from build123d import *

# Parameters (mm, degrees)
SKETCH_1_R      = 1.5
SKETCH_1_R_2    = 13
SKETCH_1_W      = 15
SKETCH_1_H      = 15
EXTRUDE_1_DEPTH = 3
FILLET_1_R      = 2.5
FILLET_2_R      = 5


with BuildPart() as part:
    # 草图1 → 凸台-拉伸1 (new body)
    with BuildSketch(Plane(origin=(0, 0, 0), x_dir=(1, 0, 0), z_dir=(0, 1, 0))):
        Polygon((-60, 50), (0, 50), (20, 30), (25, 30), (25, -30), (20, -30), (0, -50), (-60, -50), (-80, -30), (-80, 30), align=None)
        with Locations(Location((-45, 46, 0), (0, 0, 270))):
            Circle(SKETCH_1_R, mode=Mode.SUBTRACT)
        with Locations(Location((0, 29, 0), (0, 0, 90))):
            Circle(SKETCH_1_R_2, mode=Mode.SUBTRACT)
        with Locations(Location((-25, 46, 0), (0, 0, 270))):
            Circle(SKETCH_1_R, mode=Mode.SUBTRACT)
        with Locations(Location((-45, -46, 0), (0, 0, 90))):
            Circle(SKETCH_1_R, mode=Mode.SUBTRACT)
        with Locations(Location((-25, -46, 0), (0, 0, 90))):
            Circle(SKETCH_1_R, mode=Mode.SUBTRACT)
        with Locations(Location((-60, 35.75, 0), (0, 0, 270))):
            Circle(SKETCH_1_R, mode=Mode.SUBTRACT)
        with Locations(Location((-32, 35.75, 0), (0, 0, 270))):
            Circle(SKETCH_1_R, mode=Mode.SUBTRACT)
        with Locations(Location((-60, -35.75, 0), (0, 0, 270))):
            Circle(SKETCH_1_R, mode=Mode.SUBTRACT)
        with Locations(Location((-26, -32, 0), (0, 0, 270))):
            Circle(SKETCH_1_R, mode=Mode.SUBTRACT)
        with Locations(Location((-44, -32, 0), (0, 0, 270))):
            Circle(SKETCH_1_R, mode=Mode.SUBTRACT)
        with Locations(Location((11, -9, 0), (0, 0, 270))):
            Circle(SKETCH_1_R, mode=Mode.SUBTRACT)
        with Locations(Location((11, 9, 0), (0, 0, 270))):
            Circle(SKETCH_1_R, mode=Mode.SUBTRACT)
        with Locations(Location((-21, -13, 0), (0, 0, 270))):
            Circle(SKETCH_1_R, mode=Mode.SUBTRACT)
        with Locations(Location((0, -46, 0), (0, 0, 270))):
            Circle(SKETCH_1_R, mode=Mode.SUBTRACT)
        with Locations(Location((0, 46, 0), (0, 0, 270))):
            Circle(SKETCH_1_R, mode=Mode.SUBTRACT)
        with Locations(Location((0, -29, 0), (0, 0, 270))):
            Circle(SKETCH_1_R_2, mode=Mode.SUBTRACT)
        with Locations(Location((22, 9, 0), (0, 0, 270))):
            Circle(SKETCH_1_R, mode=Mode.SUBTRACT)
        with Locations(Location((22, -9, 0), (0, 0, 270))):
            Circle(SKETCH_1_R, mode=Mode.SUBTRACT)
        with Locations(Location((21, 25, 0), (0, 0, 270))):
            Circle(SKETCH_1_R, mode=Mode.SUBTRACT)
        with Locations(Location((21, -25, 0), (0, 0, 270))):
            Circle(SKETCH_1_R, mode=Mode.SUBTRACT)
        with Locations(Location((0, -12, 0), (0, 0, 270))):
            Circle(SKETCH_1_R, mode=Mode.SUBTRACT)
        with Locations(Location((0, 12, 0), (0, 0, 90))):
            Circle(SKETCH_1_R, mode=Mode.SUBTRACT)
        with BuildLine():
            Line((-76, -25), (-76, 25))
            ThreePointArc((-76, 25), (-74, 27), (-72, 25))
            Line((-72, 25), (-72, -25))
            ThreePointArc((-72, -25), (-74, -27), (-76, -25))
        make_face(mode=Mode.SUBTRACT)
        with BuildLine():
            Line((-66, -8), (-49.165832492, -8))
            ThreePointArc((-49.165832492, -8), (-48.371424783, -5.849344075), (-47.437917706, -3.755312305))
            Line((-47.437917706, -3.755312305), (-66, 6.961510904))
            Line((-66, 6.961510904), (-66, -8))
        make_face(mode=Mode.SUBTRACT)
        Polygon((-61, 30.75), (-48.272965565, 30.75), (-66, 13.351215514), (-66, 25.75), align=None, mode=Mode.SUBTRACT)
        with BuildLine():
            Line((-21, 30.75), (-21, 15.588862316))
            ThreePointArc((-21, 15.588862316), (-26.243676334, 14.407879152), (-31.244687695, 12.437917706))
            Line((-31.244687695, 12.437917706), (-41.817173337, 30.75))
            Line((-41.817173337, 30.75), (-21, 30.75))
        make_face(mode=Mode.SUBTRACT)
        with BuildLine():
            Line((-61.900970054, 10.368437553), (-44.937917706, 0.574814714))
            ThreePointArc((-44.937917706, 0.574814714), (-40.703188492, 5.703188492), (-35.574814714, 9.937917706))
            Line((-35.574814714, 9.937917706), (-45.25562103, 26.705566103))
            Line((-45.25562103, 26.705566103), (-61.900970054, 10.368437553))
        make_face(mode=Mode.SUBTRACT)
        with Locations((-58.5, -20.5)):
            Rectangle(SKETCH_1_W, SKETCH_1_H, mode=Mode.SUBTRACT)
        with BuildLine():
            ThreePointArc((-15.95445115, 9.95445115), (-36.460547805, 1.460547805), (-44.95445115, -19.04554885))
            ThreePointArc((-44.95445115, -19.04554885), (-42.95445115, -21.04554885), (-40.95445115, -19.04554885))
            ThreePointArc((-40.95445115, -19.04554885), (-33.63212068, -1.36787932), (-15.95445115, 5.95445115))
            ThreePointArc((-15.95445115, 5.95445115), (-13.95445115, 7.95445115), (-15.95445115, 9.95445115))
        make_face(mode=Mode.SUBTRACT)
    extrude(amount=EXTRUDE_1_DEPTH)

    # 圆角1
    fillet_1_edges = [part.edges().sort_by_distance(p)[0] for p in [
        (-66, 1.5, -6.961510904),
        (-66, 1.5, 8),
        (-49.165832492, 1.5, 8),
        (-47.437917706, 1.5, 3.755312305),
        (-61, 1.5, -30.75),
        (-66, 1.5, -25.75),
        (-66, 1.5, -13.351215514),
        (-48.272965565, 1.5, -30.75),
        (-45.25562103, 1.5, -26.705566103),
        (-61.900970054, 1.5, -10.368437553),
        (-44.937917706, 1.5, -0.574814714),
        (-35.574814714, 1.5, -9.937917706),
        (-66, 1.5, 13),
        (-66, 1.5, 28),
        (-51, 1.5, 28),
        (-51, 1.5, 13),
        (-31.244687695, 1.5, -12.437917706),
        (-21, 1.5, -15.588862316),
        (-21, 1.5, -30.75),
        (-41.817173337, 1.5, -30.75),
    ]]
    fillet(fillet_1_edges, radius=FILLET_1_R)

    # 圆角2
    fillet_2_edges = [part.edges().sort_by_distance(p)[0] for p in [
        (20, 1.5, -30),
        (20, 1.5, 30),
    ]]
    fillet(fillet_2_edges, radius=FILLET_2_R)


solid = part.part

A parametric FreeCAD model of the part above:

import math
import FreeCAD as App
import Part
import Sketcher

V = App.Vector
Q = App.Units.Quantity


def edges_at(feature, points):
    """Names of the edges that pass closest to the given points."""
    edges = feature.Shape.Edges
    near = lambda p: min(range(len(edges)), key=lambda i: edges[i].distToShape(Part.Vertex(*p))[0])
    return sorted({f"Edge{near(p) + 1}" for p in points})


def add_polygon(sketch, points):
    """Adds a closed chain of lines whose ends are joined by coincident constraints."""
    first, n = sketch.GeometryCount, len(points)
    for a, b in zip(points, points[1:] + points[:1]):
        sketch.addGeometry(Part.LineSegment(App.Vector(*a, 0), App.Vector(*b, 0)), False)
    for i in range(n):
        sketch.addConstraint(Sketcher.Constraint("Coincident", first + i, 2, first + (i + 1) % n, 1))

doc = App.newDocument("Part")
body = doc.addObject("PartDesign::Body", "Body")

sketch1 = body.newObject("Sketcher::SketchObject", "Sketch")
sketch1.AttachmentSupport = (doc.getObject("XZ_Plane"), [""])
sketch1.MapMode = "FlatFace"
add_polygon(sketch1, [(0, -50), (-60, -50), (-80, -30), (-80, 30), (-60, 50), (0, 50), (20, 30), (25, 30), (25, -30), (20, -30)])
sketch1.addGeometry(Part.Circle(V(0, 46, 0), V(0, 0, 1), 1.5), False)
sketch1.addGeometry(Part.Circle(V(21, 25, 0), V(0, 0, 1), 1.5), False)
sketch1.addGeometry(Part.Circle(V(0, 29, 0), V(0, 0, 1), 13), False)
sketch1.addGeometry(Part.Circle(V(-25, 46, 0), V(0, 0, 1), 1.5), False)
sketch1.addGeometry(Part.Circle(V(-26, 32, 0), V(0, 0, 1), 1.5), False)
sketch1.addGeometry(Part.Circle(V(0, 12, 0), V(0, 0, 1), 1.5), False)
sketch1.addGeometry(Part.Circle(V(22, 9, 0), V(0, 0, 1), 1.5), False)
sketch1.addGeometry(Part.Circle(V(11, 9, 0), V(0, 0, 1), 1.5), False)
sketch1.addGeometry(Part.Circle(V(-21, 13, 0), V(0, 0, 1), 1.5), False)
sketch1.addGeometry(Part.Circle(V(-45, 46, 0), V(0, 0, 1), 1.5), False)
sketch1.addGeometry(Part.Circle(V(-44, 32, 0), V(0, 0, 1), 1.5), False)
sketch1.addGeometry(Part.Circle(V(-60, 35.75, 0), V(0, 0, 1), 1.5), False)
sketch1.addGeometry(Part.ArcOfCircle(Part.Circle(V(-15.954451, -7.954451, 0), V(0, 0, 1), 2), math.radians(-90), math.radians(90)), False)
sketch1.addGeometry(Part.ArcOfCircle(Part.Circle(V(-15.954451, 19.045549, 0), V(0, 0, 1), 25), math.radians(180), math.radians(270)), False)
sketch1.addGeometry(Part.ArcOfCircle(Part.Circle(V(-42.954451, 19.045549, 0), V(0, 0, 1), 2), math.radians(0), math.radians(180)), False)
sketch1.addGeometry(Part.ArcOfCircle(Part.Circle(V(-15.954451, 19.045549, 0), V(0, 0, 1), 29), math.radians(180), math.radians(270)), False)
add_polygon(sketch1, [(-66, 28), (-66, 13), (-51, 13), (-51, 28)])
sketch1.addGeometry(Part.LineSegment(V(-66, 8, 0), V(-66, -6.961511, 0)), False)
sketch1.addGeometry(Part.LineSegment(V(-66, -6.961511, 0), V(-47.437918, 3.755312, 0)), False)
sketch1.addGeometry(Part.ArcOfCircle(Part.Circle(V(-15.954451, 19.045549, 0), V(0, 0, 1), 35), math.radians(-161.603739), math.radians(-154.096044)), False)
sketch1.addGeometry(Part.LineSegment(V(-49.165832, 8, 0), V(-66, 8, 0)), False)
sketch1.addGeometry(Part.Circle(V(22, -9, 0), V(0, 0, 1), 1.5), False)
sketch1.addGeometry(Part.Circle(V(11, -9, 0), V(0, 0, 1), 1.5), False)
sketch1.addGeometry(Part.Circle(V(0, -12, 0), V(0, 0, 1), 1.5), False)
sketch1.addGeometry(Part.Circle(V(21, -25, 0), V(0, 0, 1), 1.5), False)
sketch1.addGeometry(Part.Circle(V(0, -29, 0), V(0, 0, 1), 13), False)
sketch1.addGeometry(Part.Circle(V(0, -46, 0), V(0, 0, 1), 1.5), False)
sketch1.addGeometry(Part.Circle(V(-25, -46, 0), V(0, 0, 1), 1.5), False)
sketch1.addGeometry(Part.LineSegment(V(-21, -30.75, 0), V(-21, -15.588862, 0)), False)
sketch1.addGeometry(Part.ArcOfCircle(Part.Circle(V(-15.954451, 19.045549, 0), V(0, 0, 1), 35), math.radians(-115.903956), math.radians(-98.288555)), False)
sketch1.addGeometry(Part.LineSegment(V(-31.244688, -12.437918, 0), V(-41.817173, -30.75, 0)), False)
sketch1.addGeometry(Part.LineSegment(V(-41.817173, -30.75, 0), V(-21, -30.75, 0)), False)
sketch1.addGeometry(Part.LineSegment(V(-61.90097, -10.368438, 0), V(-45.255621, -26.705566, 0)), False)
sketch1.addGeometry(Part.LineSegment(V(-45.255621, -26.705566, 0), V(-35.574815, -9.937918, 0)), False)
sketch1.addGeometry(Part.ArcOfCircle(Part.Circle(V(-15.954451, 19.045549, 0), V(0, 0, 1), 35), math.radians(-145.903956), math.radians(-124.096044)), False)
sketch1.addGeometry(Part.LineSegment(V(-44.937918, -0.574815, 0), V(-61.90097, -10.368438, 0)), False)
sketch1.addGeometry(Part.LineSegment(V(-76, 25, 0), V(-76, -25, 0)), False)
sketch1.addGeometry(Part.ArcOfCircle(Part.Circle(V(-74, -25, 0), V(0, 0, 1), 2), math.radians(180), math.radians(360)), False)
sketch1.addGeometry(Part.LineSegment(V(-72, -25, 0), V(-72, 25, 0)), False)
sketch1.addGeometry(Part.ArcOfCircle(Part.Circle(V(-74, 25, 0), V(0, 0, 1), 2), math.radians(0), math.radians(180)), False)
add_polygon(sketch1, [(-61, -30.75), (-48.272966, -30.75), (-66, -13.351216), (-66, -25.75)])
sketch1.addGeometry(Part.Circle(V(-32, -35.75, 0), V(0, 0, 1), 1.5), False)
sketch1.addGeometry(Part.Circle(V(-45, -46, 0), V(0, 0, 1), 1.5), False)
sketch1.addGeometry(Part.Circle(V(-60, -35.75, 0), V(0, 0, 1), 1.5), False)
sketch1.addConstraint([
    Sketcher.Constraint("Tangent", 22, 2, 23, 2),
    Sketcher.Constraint("Tangent", 23, 1, 24, 1),
    Sketcher.Constraint("Tangent", 24, 2, 25, 1),
    Sketcher.Constraint("Tangent", 25, 2, 22, 1),
    Sketcher.Constraint("Coincident", 30, 2, 31, 1),
    Sketcher.Constraint("Coincident", 31, 2, 32, 2),
    Sketcher.Constraint("Coincident", 32, 1, 33, 1),
    Sketcher.Constraint("Coincident", 33, 2, 30, 1),
    Sketcher.Constraint("Coincident", 41, 2, 42, 2),
    Sketcher.Constraint("Coincident", 42, 1, 43, 1),
    Sketcher.Constraint("Coincident", 43, 2, 44, 1),
    Sketcher.Constraint("Coincident", 44, 2, 41, 1),
    Sketcher.Constraint("Coincident", 45, 2, 46, 1),
    Sketcher.Constraint("Coincident", 46, 2, 47, 2),
    Sketcher.Constraint("Coincident", 47, 1, 48, 1),
    Sketcher.Constraint("Coincident", 48, 2, 45, 1),
    Sketcher.Constraint("Tangent", 49, 2, 50, 1),
    Sketcher.Constraint("Tangent", 50, 2, 51, 1),
    Sketcher.Constraint("Tangent", 51, 2, 52, 1),
    Sketcher.Constraint("Tangent", 52, 2, 49, 1),
    Sketcher.Constraint("Horizontal", 0),
    Sketcher.Constraint("Vertical", 2),
    Sketcher.Constraint("Horizontal", 4),
    Sketcher.Constraint("Horizontal", 6),
    Sketcher.Constraint("Vertical", 7),
    Sketcher.Constraint("Horizontal", 8),
    Sketcher.Constraint("Vertical", 26),
    Sketcher.Constraint("Horizontal", 27),
    Sketcher.Constraint("Vertical", 28),
    Sketcher.Constraint("Horizontal", 29),
    Sketcher.Constraint("Vertical", 30),
    Sketcher.Constraint("Horizontal", 33),
    Sketcher.Constraint("Vertical", 41),
    Sketcher.Constraint("Horizontal", 44),
    Sketcher.Constraint("Vertical", 49),
    Sketcher.Constraint("Vertical", 51),
    Sketcher.Constraint("Horizontal", 53),
    Sketcher.Constraint("Vertical", 55),
    Sketcher.Constraint("Coincident", 25, 3, 23, 3),
    Sketcher.Constraint("Coincident", 32, 3, 23, 3),
    Sketcher.Constraint("Coincident", 42, 3, 23, 3),
    Sketcher.Constraint("Coincident", 47, 3, 23, 3),
    Sketcher.Constraint("Equal", 10, 11),
    Sketcher.Constraint("Equal", 11, 13),
    Sketcher.Constraint("Equal", 13, 14),
    Sketcher.Constraint("Equal", 14, 15),
    Sketcher.Constraint("Equal", 15, 16),
    Sketcher.Constraint("Equal", 16, 17),
    Sketcher.Constraint("Equal", 17, 18),
    Sketcher.Constraint("Equal", 18, 19),
    Sketcher.Constraint("Equal", 19, 20),
    Sketcher.Constraint("Equal", 20, 21),
    Sketcher.Constraint("Equal", 21, 34),
    Sketcher.Constraint("Equal", 34, 35),
    Sketcher.Constraint("Equal", 35, 36),
    Sketcher.Constraint("Equal", 36, 37),
    Sketcher.Constraint("Equal", 12, 38),
    Sketcher.Constraint("Equal", 37, 39),
    Sketcher.Constraint("Equal", 39, 40),
    Sketcher.Constraint("Equal", 32, 42),
    Sketcher.Constraint("Equal", 42, 47),
    Sketcher.Constraint("Equal", 24, 50),
    Sketcher.Constraint("Equal", 40, 57),
    Sketcher.Constraint("Equal", 57, 58),
    Sketcher.Constraint("Equal", 58, 59),
    Sketcher.Constraint("Symmetric", 15, 3, 36, 3, -1, 1),
    Sketcher.Constraint("Symmetric", 12, 3, 38, 3, -1, 1),
    Sketcher.Constraint("Symmetric", 10, 3, 39, 3, -1, 1),
    Sketcher.Constraint("Symmetric", 4, 2, 9, 2, -1, 1),
    Sketcher.Constraint("Symmetric", 16, 3, 34, 3, -1),
    Sketcher.Constraint("Symmetric", 17, 3, 35, 3, -1),
    Sketcher.Constraint("Symmetric", 11, 3, 37, 3, -1),
    Sketcher.Constraint("Symmetric", 13, 3, 40, 3, -1),
    Sketcher.Constraint("Symmetric", 19, 3, 58, 3, -1),
    Sketcher.Constraint("Symmetric", 21, 3, 59, 3, -1),
    Sketcher.Constraint("Symmetric", 5, 2, 8, 2, -1),
    Sketcher.Constraint("PointOnObject", 10, 3, -2),
    Sketcher.Constraint("PointOnObject", 12, 3, -2),
    Sketcher.Constraint("PointOnObject", 15, 3, -2),
    Sketcher.Constraint("PointOnObject", 4, 2, -2),
    Sketcher.Constraint("Perpendicular", 1, 3),
    Sketcher.Constraint("Perpendicular", 3, 5),
    Sketcher.Constraint("Perpendicular", 5, 9),
    Sketcher.Constraint("Parallel", 43, 46),
    Sketcher.Constraint("Parallel", 31, 48),
    Sketcher.Constraint("Parallel", 45, 54),
    Sketcher.Constraint("Perpendicular", 9, 56),
    Sketcher.Constraint("Horizontal", 10, 3, 13, 3),
    Sketcher.Constraint("Horizontal", 16, 3, 17, 3),
    Sketcher.Constraint("Horizontal", 13, 3, 19, 3),
    Sketcher.Constraint("Horizontal", 14, 3, 20, 3),
    Sketcher.Constraint("Horizontal", 23, 3, 24, 3),
    Sketcher.Constraint("Horizontal", 37, 3, 50, 3),
    Sketcher.Constraint("Horizontal", 11, 3, 52, 3),
    Sketcher.Constraint("Horizontal", 57, 3, 59, 3),
    Sketcher.Constraint("Horizontal", 2, 2, 5, 2),
    Sketcher.Constraint("Horizontal", 1, 2, 7, 2),
    Sketcher.Constraint("Horizontal", 18, 3, 26, 2),
    Sketcher.Constraint("Horizontal", 44, 2, 53, 2),
    Sketcher.Constraint("Vertical", 22, 3, 23, 3),
    Sketcher.Constraint("Vertical", 59, 3, 0, 2),
    Sketcher.Constraint("Vertical", 29, 2, 30, 2),
    Sketcher.Constraint("Vertical", 18, 3, 41, 2),
    Sketcher.Constraint("Vertical", 33, 2, 54, 2),
    Sketcher.Constraint("Equal", 4, 2),
    Sketcher.Constraint("Equal", 29, 26),
    Sketcher.Constraint("Diameter", 10, 3.0),
    Sketcher.Constraint("Diameter", 12, 26.0),
    Sketcher.Constraint("Radius", 22, 2.0),
    Sketcher.Constraint("Radius", 23, 25.0),
    Sketcher.Constraint("Radius", 32, 35.0),
    Sketcher.Constraint("DistanceX", 0, 2, 0, 1, 60.0),
    Sketcher.Constraint("DistanceX", 6, 1, 6, 2, 5.0),
    Sketcher.Constraint("DistanceX", 27, 1, 27, 2, 15.0),
    Sketcher.Constraint("DistanceY", 49, 2, 49, 1, 50.0),
    Sketcher.Constraint("Angle", 31, Q("30 deg")),
    Sketcher.Constraint("Angle", 43, Q("-120 deg")),
    Sketcher.Constraint("DistanceY", -1, 1, 10, 3, 46.0),
    Sketcher.Constraint("DistanceX", -1, 1, 11, 3, 21.0),
    Sketcher.Constraint("DistanceY", -1, 1, 12, 3, 29.0),
    Sketcher.Constraint("DistanceX", 13, 3, -1, 1, 25.0),
    Sketcher.Constraint("DistanceX", 14, 3, -1, 1, 26.0),
    Sketcher.Constraint("DistanceY", -1, 1, 14, 3, 32.0),
    Sketcher.Constraint("DistanceY", -1, 1, 15, 3, 12.0),
    Sketcher.Constraint("DistanceX", -1, 1, 16, 3, 22.0),
    Sketcher.Constraint("DistanceY", -1, 1, 16, 3, 9.0),
    Sketcher.Constraint("DistanceX", -1, 1, 17, 3, 11.0),
    Sketcher.Constraint("DistanceX", 18, 3, -1, 1, 21.0),
    Sketcher.Constraint("DistanceY", -1, 1, 18, 3, 13.0),
    Sketcher.Constraint("DistanceX", 19, 3, -1, 1, 45.0),
    Sketcher.Constraint("DistanceX", 20, 3, -1, 1, 44.0),
    Sketcher.Constraint("DistanceX", 50, 3, -1, 1, 74.0),
    Sketcher.Constraint("DistanceX", 57, 3, -1, 1, 32.0),
    Sketcher.Constraint("DistanceY", 0, 2, -1, 1, 50.0),
    Sketcher.Constraint("DistanceX", 26, 2, -1, 1, 66.0),
    Sketcher.Constraint("DistanceY", -1, 1, 32, 1, 8.0),
    Sketcher.Constraint("DistanceX", 56, 2, -1, 1, 61.0),
    Sketcher.Constraint("DistanceY", -1, 1, 21, 3, 35.75),
    Sketcher.Constraint("DistanceY", 43, 2, -1, 1, 30.75),
    Sketcher.Constraint("DistanceY", 30, 2, 30, 1, 14.961511),
    Sketcher.Constraint("Distance", 43, 21.144971),
    Sketcher.Constraint("Distance", 45, 23.323152),
    Sketcher.Constraint("Distance", 54, 24.838789),
    Sketcher.Constraint("DistanceX", 33, 2, 33, 1, 16.834168),
    Sketcher.Constraint("DistanceX", 44, 1, 44, 2, 20.817173),
    Sketcher.Constraint("DistanceX", 53, 1, 53, 2, 12.727034),
    Sketcher.Constraint("DistanceX", 45, 2, -1, 1, 45.255621),
    Sketcher.Constraint("Distance", 46, 19.361613),
])
pad1 = body.newObject("PartDesign::Pad", "Pad")
pad1.Profile = sketch1
pad1.Length = 3
pad1.Reversed = True
doc.recompute()

fillet = body.newObject("PartDesign::Fillet", "Fillet")
fillet.Base = (pad1, edges_at(pad1, [
    (-66, 1.5, -6.962),
    (-66, 1.5, 8),
    (-49.166, 1.5, 8),
    (-47.438, 1.5, 3.755),
    (-61, 1.5, -30.75),
    (-66, 1.5, -25.75),
    (-66, 1.5, -13.351),
    (-48.273, 1.5, -30.75),
    (-45.256, 1.5, -26.706),
    (-61.901, 1.5, -10.368),
    (-44.938, 1.5, -0.575),
    (-35.575, 1.5, -9.938),
    (-66, 1.5, 13),
    (-66, 1.5, 28),
    (-51, 1.5, 28),
    (-51, 1.5, 13),
    (-31.245, 1.5, -12.438),
    (-21, 1.5, -15.589),
    (-21, 1.5, -30.75),
    (-41.817, 1.5, -30.75),
]))
fillet.Radius = 2.5
doc.recompute()

fillet2 = body.newObject("PartDesign::Fillet", "Fillet001")
fillet2.Base = (fillet, edges_at(fillet, [(20, 1.5, -30), (20, 1.5, 30)]))
fillet2.Radius = 5

doc.recompute()
